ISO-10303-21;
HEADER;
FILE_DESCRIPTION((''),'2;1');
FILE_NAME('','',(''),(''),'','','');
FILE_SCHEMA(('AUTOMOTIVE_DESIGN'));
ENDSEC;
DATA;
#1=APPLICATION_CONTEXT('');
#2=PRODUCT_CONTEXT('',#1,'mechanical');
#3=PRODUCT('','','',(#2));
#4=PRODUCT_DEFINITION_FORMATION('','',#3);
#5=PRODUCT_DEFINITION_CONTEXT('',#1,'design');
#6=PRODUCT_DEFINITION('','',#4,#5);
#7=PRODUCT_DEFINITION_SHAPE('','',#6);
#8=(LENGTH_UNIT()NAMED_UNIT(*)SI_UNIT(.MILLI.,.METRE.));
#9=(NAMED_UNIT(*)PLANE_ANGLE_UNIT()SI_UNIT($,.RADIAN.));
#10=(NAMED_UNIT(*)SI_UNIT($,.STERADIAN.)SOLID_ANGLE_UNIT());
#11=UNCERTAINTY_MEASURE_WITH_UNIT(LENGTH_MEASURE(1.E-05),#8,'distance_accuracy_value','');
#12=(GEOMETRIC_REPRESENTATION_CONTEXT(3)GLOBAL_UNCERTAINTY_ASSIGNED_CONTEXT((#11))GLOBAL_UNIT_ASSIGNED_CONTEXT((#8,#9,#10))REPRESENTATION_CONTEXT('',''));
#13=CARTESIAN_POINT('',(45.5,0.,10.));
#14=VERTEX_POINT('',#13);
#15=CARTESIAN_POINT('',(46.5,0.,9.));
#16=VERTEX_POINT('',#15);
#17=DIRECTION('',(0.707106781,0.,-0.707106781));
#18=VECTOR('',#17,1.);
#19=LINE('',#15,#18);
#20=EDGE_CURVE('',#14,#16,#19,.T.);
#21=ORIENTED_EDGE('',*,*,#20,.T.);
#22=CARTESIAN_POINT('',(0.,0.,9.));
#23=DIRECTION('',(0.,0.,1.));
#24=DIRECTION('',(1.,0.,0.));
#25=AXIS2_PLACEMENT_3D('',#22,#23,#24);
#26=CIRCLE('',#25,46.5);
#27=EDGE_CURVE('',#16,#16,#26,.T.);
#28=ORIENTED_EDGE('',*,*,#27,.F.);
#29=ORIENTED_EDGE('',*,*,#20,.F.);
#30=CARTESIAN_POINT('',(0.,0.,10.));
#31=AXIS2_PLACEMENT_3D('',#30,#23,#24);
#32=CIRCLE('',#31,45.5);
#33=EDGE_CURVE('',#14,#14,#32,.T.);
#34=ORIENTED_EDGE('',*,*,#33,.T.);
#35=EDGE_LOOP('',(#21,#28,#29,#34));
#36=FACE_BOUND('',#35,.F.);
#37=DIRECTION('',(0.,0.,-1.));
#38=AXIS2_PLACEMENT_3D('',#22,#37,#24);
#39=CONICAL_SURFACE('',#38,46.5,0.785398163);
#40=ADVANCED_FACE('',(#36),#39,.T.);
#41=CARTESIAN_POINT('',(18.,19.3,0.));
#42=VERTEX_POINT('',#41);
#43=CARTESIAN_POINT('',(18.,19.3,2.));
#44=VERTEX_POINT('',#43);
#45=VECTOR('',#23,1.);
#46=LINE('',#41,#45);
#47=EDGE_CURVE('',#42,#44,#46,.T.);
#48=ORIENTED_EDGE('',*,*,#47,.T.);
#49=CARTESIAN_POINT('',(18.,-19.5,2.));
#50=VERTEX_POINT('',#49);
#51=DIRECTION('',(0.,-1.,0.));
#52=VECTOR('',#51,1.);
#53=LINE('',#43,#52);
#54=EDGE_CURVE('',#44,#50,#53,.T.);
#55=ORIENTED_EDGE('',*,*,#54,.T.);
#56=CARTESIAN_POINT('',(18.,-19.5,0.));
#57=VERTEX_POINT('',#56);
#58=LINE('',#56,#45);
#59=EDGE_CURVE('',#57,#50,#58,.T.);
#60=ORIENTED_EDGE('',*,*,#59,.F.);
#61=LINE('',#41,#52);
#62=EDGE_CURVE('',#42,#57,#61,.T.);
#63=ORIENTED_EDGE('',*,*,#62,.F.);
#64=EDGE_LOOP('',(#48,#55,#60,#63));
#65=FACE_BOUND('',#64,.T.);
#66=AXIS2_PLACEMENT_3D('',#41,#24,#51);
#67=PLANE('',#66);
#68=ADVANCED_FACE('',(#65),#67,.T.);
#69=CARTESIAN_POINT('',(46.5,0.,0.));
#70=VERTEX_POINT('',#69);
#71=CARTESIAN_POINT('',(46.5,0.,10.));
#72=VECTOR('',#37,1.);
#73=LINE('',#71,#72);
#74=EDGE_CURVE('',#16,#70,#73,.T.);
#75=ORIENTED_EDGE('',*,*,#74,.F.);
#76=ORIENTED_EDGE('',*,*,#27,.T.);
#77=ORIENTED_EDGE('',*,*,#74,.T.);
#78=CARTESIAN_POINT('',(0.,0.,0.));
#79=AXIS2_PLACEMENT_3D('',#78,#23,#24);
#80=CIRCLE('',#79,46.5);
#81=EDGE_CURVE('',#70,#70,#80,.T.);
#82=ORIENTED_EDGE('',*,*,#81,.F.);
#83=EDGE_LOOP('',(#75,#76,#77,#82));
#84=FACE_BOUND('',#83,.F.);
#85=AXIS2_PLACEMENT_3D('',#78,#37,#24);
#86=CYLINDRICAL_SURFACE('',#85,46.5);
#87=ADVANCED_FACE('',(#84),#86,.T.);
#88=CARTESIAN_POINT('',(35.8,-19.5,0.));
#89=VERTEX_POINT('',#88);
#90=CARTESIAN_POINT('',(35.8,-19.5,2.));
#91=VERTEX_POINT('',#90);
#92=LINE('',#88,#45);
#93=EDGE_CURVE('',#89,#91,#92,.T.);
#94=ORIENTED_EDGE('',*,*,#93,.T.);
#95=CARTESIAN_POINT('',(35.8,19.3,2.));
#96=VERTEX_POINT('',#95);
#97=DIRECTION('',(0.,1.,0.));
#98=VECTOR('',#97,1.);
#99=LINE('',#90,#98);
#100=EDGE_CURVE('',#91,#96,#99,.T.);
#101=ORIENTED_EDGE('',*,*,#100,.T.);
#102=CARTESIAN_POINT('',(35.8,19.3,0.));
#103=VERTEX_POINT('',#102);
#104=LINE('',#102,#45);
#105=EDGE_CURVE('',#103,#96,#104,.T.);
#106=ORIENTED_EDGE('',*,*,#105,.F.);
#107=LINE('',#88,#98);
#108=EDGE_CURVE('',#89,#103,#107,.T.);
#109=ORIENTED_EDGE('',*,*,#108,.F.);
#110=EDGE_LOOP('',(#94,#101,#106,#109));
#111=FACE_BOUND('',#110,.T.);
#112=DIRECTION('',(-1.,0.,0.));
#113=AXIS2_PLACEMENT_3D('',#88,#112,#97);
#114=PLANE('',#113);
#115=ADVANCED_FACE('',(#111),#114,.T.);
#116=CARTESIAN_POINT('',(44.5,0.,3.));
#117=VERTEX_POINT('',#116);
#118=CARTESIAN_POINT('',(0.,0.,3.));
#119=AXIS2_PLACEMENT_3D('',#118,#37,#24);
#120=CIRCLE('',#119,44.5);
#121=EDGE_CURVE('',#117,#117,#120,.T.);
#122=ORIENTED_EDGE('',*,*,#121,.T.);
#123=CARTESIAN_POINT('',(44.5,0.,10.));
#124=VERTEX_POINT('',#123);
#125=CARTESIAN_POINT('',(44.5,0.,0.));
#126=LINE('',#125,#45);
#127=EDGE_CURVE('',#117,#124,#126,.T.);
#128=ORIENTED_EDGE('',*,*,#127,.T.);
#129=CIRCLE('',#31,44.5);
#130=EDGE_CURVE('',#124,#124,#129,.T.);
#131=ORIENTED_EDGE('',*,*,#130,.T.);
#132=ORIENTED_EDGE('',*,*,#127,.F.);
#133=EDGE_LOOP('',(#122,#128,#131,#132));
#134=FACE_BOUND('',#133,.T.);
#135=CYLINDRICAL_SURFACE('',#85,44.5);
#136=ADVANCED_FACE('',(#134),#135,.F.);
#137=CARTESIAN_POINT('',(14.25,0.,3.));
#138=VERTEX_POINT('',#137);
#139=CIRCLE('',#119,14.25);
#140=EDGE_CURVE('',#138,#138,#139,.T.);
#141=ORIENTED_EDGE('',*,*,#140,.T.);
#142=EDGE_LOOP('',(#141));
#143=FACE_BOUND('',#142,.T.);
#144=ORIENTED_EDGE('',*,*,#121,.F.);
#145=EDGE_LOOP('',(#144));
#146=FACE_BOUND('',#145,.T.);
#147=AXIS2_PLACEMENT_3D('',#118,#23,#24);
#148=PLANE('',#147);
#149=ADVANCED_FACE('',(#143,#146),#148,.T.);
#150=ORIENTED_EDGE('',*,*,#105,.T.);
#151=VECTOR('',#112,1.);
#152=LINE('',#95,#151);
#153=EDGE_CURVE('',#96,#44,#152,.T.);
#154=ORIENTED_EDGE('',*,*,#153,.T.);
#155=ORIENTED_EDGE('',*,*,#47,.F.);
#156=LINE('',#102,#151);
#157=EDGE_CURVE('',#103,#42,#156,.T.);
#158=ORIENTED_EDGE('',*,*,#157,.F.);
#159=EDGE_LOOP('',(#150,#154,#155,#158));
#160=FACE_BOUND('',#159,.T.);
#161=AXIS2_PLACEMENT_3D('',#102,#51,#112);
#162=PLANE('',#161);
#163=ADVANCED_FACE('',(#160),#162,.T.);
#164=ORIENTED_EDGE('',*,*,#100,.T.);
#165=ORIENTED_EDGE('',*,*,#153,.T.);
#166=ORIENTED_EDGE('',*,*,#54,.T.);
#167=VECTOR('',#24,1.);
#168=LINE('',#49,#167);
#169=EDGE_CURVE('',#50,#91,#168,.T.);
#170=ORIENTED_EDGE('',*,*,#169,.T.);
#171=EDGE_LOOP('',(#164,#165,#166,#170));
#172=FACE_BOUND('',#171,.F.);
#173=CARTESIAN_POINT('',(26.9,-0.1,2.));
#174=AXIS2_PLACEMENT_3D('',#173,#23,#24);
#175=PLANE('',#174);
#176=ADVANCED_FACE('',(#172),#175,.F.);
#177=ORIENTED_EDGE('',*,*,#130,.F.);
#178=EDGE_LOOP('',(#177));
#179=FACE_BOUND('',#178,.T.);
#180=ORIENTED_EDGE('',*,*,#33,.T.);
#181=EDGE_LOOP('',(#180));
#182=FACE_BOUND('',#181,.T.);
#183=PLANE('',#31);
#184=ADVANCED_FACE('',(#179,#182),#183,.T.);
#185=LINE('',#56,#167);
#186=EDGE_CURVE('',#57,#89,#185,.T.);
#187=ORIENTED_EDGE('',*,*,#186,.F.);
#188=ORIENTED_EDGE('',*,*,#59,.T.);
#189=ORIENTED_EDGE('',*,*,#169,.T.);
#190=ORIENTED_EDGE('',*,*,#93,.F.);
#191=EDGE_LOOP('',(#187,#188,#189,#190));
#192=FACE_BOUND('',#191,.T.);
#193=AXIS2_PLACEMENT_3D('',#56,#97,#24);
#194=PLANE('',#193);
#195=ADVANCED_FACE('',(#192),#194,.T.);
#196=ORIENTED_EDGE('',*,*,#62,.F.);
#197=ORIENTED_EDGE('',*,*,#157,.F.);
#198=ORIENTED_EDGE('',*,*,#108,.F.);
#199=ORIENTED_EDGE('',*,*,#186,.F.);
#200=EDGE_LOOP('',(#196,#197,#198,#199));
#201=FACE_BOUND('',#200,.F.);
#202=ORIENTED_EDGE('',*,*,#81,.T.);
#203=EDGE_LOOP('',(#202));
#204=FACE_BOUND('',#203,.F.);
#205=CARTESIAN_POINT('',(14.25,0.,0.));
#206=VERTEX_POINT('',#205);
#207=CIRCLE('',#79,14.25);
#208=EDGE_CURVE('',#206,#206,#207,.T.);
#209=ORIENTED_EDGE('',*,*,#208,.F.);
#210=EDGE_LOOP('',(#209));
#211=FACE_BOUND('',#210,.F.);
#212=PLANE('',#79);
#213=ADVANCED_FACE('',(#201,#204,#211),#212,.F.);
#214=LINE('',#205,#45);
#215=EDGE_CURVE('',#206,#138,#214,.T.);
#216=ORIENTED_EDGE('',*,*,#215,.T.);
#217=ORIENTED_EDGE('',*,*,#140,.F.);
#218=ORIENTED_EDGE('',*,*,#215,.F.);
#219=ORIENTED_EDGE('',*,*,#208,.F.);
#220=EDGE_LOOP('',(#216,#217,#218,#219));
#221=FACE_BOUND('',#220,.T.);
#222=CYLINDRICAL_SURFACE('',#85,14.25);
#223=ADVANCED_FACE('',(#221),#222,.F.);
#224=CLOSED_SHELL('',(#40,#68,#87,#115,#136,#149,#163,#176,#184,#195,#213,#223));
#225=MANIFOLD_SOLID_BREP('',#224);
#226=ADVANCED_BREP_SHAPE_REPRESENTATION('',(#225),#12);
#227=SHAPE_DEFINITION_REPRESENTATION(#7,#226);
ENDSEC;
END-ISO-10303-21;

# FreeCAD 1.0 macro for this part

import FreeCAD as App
import Part
import Sketcher
from FreeCAD import Vector


def edges_at(feature, points):
    """Names of the edges that pass closest to the given points."""
    edges = feature.Shape.Edges
    near = lambda p: min(range(len(edges)), key=lambda i: edges[i].distToShape(Part.Vertex(*p))[0])
    return sorted({f"Edge{near(p) + 1}" for p in points})

doc = App.newDocument("Part")
body = doc.addObject("PartDesign::Body", "Body")

# Sketch on XY plane
sketch1 = body.newObject("Sketcher::SketchObject", "Sketch")
sketch1.AttachmentSupport = (doc.getObject("XY_Plane"), [""])
sketch1.MapMode = "FlatFace"
sketch1.addGeometry(Part.Circle(Vector(0, 0, 0), Vector(0, 0, 1), 46), False)
sketch1.addConstraint(Sketcher.Constraint("Coincident", 0, 3, -1, 1))
sketch1.addConstraint(Sketcher.Constraint("Diameter", 0, 93.0))
pad1 = body.newObject("PartDesign::Pad", "Pad")
pad1.Profile = sketch1
pad1.Length = 3

# Sketch on XY plane
sketch2 = body.newObject("Sketcher::SketchObject", "Sketch001")
sketch2.AttachmentSupport = (doc.getObject("XY_Plane"), [""])
sketch2.MapMode = "FlatFace"
sketch2.addGeometry(Part.Circle(Vector(0, 0, 0), Vector(0, 0, 1), 46), False)
sketch2.addGeometry(Part.Circle(Vector(0, 0, 0), Vector(0, 0, 1), 44), False)
sketch2.addConstraint(Sketcher.Constraint("Coincident", 0, 3, -1, 1))
sketch2.addConstraint(Sketcher.Constraint("Coincident", 1, 3, -1, 1))
sketch2.addConstraint(Sketcher.Constraint("Diameter", 0, 93.0))
sketch2.addConstraint(Sketcher.Constraint("Diameter", 1, 89.0))
pad2 = body.newObject("PartDesign::Pad", "Pad001")
pad2.Profile = sketch2
pad2.Length = 10

# Sketch on XY plane
sketch3 = body.newObject("Sketcher::SketchObject", "Sketch002")
sketch3.AttachmentSupport = (doc.getObject("XY_Plane"), [""])
sketch3.MapMode = "FlatFace"
sketch3.addGeometry(Part.LineSegment(Vector(18, -20, 0), Vector(36, -20, 0)), False)
sketch3.addGeometry(Part.LineSegment(Vector(36, -20, 0), Vector(36, 19, 0)), False)
sketch3.addGeometry(Part.LineSegment(Vector(36, 19, 0), Vector(18, 19, 0)), False)
sketch3.addGeometry(Part.LineSegment(Vector(18, 19, 0), Vector(18, -20, 0)), False)
sketch3.addConstraint(Sketcher.Constraint("Coincident", 0, 2, 1, 1))
sketch3.addConstraint(Sketcher.Constraint("Coincident", 1, 2, 2, 1))
sketch3.addConstraint(Sketcher.Constraint("Coincident", 2, 2, 3, 1))
sketch3.addConstraint(Sketcher.Constraint("Coincident", 3, 2, 0, 1))
sketch3.addConstraint(Sketcher.Constraint("Horizontal", 0))
sketch3.addConstraint(Sketcher.Constraint("Vertical", 1))
sketch3.addConstraint(Sketcher.Constraint("Horizontal", 2))
sketch3.addConstraint(Sketcher.Constraint("Vertical", 3))
sketch3.addConstraint(Sketcher.Constraint("DistanceX", 0, 1, 0, 2, 17.8))
sketch3.addConstraint(Sketcher.Constraint("DistanceY", 1, 1, 1, 2, 38.8))
sketch3.addConstraint(Sketcher.Constraint("DistanceX", -1, 1, 2, 2, 18.0))
sketch3.addConstraint(Sketcher.Constraint("DistanceY", 0, 2, -1, 1, 19.5))
pocket1 = body.newObject("PartDesign::Pocket", "Pocket")
pocket1.Profile = sketch3
pocket1.Length = 2
pocket1.Reversed = True

# Sketch on XY plane
sketch4 = body.newObject("Sketcher::SketchObject", "Sketch003")
sketch4.AttachmentSupport = (doc.getObject("XY_Plane"), [""])
sketch4.MapMode = "FlatFace"
sketch4.addGeometry(Part.Circle(Vector(0, 0, 0), Vector(0, 0, 1), 14), False)
sketch4.addConstraint(Sketcher.Constraint("Coincident", 0, 3, -1, 1))
sketch4.addConstraint(Sketcher.Constraint("Diameter", 0, 28.5))
pocket2 = body.newObject("PartDesign::Pocket", "Pocket001")
pocket2.Profile = sketch4
pocket2.Type = "ThroughAll"
pocket2.Reversed = True
doc.recompute()

chamfer = body.newObject("PartDesign::Chamfer", "Chamfer")
chamfer.Base = (pocket2, edges_at(pocket2, [(-46.5, 0, 10)]))
chamfer.Size = 1

doc.recompute()
